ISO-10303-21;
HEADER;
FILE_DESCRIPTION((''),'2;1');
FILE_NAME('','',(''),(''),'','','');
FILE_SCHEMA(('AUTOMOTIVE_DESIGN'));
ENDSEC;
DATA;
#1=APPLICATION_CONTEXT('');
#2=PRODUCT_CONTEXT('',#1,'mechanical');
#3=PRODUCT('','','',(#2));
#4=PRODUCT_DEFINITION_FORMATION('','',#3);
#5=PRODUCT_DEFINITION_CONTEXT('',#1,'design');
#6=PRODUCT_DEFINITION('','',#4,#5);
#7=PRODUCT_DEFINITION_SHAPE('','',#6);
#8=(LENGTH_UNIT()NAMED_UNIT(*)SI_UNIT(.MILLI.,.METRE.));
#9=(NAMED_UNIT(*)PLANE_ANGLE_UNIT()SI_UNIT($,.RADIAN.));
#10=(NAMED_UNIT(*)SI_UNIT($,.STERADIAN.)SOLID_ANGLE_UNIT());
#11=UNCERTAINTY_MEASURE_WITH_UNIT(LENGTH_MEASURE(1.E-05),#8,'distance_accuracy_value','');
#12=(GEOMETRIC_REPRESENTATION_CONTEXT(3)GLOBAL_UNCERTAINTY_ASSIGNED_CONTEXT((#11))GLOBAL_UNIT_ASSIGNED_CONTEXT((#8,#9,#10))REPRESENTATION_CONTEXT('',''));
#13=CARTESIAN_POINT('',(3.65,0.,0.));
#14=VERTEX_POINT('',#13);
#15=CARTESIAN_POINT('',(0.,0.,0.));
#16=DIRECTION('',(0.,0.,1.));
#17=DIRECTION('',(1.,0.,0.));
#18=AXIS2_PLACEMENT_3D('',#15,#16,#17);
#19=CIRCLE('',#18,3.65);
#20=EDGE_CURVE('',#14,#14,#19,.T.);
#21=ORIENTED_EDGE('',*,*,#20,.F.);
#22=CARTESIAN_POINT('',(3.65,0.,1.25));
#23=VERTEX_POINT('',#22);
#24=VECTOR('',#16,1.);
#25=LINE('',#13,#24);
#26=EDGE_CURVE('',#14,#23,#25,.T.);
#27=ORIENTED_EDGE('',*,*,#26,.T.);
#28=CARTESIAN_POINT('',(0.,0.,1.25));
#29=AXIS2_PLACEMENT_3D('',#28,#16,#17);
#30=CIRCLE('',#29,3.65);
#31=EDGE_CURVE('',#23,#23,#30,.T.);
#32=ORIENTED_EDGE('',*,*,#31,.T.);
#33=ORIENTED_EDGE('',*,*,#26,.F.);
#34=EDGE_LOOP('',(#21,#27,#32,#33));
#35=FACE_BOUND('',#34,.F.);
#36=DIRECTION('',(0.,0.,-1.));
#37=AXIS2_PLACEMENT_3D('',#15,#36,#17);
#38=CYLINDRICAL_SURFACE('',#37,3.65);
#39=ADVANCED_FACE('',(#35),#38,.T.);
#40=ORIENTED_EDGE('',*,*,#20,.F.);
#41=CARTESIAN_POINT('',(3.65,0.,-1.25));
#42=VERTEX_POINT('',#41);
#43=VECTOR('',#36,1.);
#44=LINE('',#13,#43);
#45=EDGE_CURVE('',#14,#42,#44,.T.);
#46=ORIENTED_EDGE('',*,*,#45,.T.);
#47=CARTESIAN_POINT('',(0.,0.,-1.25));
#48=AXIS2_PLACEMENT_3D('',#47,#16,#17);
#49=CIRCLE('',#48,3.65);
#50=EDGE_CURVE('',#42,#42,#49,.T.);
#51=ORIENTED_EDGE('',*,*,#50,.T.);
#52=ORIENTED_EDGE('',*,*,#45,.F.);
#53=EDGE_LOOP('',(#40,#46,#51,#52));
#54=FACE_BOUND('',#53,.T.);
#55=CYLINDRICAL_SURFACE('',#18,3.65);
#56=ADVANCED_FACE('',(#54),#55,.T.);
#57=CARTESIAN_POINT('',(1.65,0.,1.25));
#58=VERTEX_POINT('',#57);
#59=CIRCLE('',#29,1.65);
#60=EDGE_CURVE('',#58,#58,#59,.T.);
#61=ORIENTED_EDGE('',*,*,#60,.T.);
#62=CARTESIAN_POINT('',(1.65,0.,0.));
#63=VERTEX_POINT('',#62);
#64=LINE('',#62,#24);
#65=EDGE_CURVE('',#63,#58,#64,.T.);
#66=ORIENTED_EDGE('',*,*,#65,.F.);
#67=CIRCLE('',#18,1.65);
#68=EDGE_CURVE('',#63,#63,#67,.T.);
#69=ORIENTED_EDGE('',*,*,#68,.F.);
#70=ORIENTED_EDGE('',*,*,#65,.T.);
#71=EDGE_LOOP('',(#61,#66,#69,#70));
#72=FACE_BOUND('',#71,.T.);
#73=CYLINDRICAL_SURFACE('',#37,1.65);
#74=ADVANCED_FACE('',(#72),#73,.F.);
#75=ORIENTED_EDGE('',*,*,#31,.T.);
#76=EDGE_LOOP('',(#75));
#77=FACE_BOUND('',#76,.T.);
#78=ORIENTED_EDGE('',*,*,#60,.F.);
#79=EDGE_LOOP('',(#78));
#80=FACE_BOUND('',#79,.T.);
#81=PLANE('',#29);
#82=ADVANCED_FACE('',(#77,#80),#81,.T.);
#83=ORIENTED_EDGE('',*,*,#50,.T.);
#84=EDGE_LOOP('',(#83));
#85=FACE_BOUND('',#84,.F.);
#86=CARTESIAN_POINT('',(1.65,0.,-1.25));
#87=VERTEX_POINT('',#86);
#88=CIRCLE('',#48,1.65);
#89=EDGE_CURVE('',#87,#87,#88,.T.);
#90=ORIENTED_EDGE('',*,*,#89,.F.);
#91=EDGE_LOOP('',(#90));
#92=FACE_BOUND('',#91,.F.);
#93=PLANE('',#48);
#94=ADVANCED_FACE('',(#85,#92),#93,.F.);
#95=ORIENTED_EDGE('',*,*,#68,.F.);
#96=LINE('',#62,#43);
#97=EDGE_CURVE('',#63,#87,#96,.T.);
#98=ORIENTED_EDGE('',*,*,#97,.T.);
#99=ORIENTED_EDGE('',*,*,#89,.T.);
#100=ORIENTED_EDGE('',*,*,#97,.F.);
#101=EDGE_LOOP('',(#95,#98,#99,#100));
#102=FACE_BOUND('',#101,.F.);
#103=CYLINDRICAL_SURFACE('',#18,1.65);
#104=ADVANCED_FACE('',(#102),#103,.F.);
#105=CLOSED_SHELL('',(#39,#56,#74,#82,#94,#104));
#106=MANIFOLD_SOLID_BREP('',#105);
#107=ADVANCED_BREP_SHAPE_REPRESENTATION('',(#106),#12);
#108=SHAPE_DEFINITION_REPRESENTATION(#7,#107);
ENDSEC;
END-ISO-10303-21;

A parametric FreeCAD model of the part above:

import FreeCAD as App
import Part
import Sketcher

V = App.Vector
Q = App.Units.Quantity

doc = App.newDocument("Part")
body = doc.addObject("PartDesign::Body", "Body")

sketch1 = body.newObject("Sketcher::SketchObject", "Sketch")
sketch1.AttachmentSupport = (doc.getObject("XY_Plane"), [""])
sketch1.MapMode = "FlatFace"
sketch1.addGeometry([
    Part.Circle(V(0, 0, 0), V(0, 0, 1), 3.6),
    Part.Circle(V(0, 0, 0), V(0, 0, 1), 1.6),
], False)
sketch1.addConstraint([
    Sketcher.Constraint("Coincident", 0, 3, -1, 1),
    Sketcher.Constraint("Coincident", 1, 3, -1, 1),
    Sketcher.Constraint("Diameter", 0, Q("7.3 mm")),
    Sketcher.Constraint("Diameter", 1, Q("3.3 mm")),
])
pad1 = body.newObject("PartDesign::Pad", "Pad")
pad1.Profile = sketch1
pad1.Length = 2.5
pad1.Midplane = True

doc.recompute()
